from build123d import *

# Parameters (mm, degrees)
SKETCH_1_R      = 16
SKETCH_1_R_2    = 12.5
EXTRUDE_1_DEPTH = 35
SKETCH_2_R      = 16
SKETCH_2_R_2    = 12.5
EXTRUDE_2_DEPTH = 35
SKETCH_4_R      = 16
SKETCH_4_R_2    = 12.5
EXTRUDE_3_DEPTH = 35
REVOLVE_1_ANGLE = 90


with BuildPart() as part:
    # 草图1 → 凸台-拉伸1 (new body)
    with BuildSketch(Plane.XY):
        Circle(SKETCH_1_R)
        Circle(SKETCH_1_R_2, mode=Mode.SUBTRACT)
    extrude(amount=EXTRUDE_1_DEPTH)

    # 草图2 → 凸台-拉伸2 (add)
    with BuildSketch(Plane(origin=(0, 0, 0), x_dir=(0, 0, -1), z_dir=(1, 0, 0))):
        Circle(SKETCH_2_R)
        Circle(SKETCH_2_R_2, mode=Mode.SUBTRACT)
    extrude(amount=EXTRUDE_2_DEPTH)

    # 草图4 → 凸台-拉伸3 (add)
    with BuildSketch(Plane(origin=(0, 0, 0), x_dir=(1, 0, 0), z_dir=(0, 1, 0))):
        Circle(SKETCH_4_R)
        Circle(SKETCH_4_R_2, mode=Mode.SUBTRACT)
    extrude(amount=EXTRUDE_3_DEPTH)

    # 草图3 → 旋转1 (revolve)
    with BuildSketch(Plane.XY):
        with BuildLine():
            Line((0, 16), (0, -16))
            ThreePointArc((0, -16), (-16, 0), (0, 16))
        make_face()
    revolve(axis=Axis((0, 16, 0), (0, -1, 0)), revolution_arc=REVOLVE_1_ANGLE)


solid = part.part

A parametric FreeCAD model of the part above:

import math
import FreeCAD as App
import Part
import Sketcher
from FreeCAD import Vector
Q = App.Units.Quantity

doc = App.newDocument("Part")
body = doc.addObject("PartDesign::Body", "Body")

sketch1 = body.newObject("Sketcher::SketchObject", "Sketch")
sketch1.AttachmentSupport = (doc.getObject("XY_Plane"), [""])
sketch1.MapMode = "FlatFace"
sketch1.addGeometry(Part.Circle(Vector(0, 0, 0), Vector(0, 0, 1), 16), False)
sketch1.addGeometry(Part.Circle(Vector(0, 0, 0), Vector(0, 0, 1), 12.5), False)
sketch1.addConstraint(Sketcher.Constraint("Coincident", 0, 3, -1, 1))
sketch1.addConstraint(Sketcher.Constraint("Coincident", 1, 3, -1, 1))
sketch1.addConstraint(Sketcher.Constraint("Diameter", 0, Q("32 mm")))
sketch1.addConstraint(Sketcher.Constraint("Diameter", 1, Q("25 mm")))
pad1 = body.newObject("PartDesign::Pad", "Pad")
pad1.Profile = sketch1
pad1.Length = 35

sketch2 = body.newObject("Sketcher::SketchObject", "Sketch001")
sketch2.AttachmentSupport = (doc.getObject("YZ_Plane"), [""])
sketch2.MapMode = "FlatFace"
sketch2.addGeometry(Part.Circle(Vector(0, 0, 0), Vector(0, 0, 1), 16), False)
sketch2.addGeometry(Part.Circle(Vector(0, 0, 0), Vector(0, 0, 1), 12.5), False)
sketch2.addConstraint(Sketcher.Constraint("Coincident", 0, 3, -1, 1))
sketch2.addConstraint(Sketcher.Constraint("Coincident", 1, 3, -1, 1))
sketch2.addConstraint(Sketcher.Constraint("Diameter", 0, Q("32 mm")))
sketch2.addConstraint(Sketcher.Constraint("Diameter", 1, Q("25 mm")))
pad2 = body.newObject("PartDesign::Pad", "Pad001")
pad2.Profile = sketch2
pad2.Length = 35

sketch3 = body.newObject("Sketcher::SketchObject", "Sketch002")
sketch3.AttachmentSupport = (doc.getObject("XZ_Plane"), [""])
sketch3.MapMode = "FlatFace"
sketch3.addGeometry(Part.Circle(Vector(0, 0, 0), Vector(0, 0, 1), 16), False)
sketch3.addGeometry(Part.Circle(Vector(0, 0, 0), Vector(0, 0, 1), 12.5), False)
sketch3.addConstraint(Sketcher.Constraint("Coincident", 0, 3, -1, 1))
sketch3.addConstraint(Sketcher.Constraint("Coincident", 1, 3, -1, 1))
sketch3.addConstraint(Sketcher.Constraint("Diameter", 0, Q("32 mm")))
sketch3.addConstraint(Sketcher.Constraint("Diameter", 1, Q("25 mm")))
pad3 = body.newObject("PartDesign::Pad", "Pad002")
pad3.Profile = sketch3
pad3.Length = 35
pad3.Reversed = True

sketch4 = body.newObject("Sketcher::SketchObject", "Sketch003")
sketch4.AttachmentSupport = (doc.getObject("XY_Plane"), [""])
sketch4.MapMode = "FlatFace"
sketch4.addGeometry(Part.LineSegment(Vector(0, -16, 0), Vector(0, 16, 0)), False)
sketch4.addGeometry(Part.ArcOfCircle(Part.Circle(Vector(0, 0, 0), Vector(0, 0, 1), 16), math.radians(90), math.radians(270)), False)
sketch4.addConstraint(Sketcher.Constraint("Coincident", 0, 1, 1, 2))
sketch4.addConstraint(Sketcher.Constraint("Coincident", 1, 1, 0, 2))
sketch4.addConstraint(Sketcher.Constraint("Vertical", 0))
sketch4.addConstraint(Sketcher.Constraint("Coincident", 1, 3, -1, 1))
sketch4.addConstraint(Sketcher.Constraint("PointOnObject", 0, 1, -2))
sketch4.addConstraint(Sketcher.Constraint("Radius", 1, Q("16 mm")))
revolution = body.newObject("PartDesign::Revolution", "Revolution")
revolution.Profile = sketch4
revolution.ReferenceAxis = (sketch4, ["V_Axis"])
revolution.Angle = 90
revolution.Reversed = True

doc.recompute()
